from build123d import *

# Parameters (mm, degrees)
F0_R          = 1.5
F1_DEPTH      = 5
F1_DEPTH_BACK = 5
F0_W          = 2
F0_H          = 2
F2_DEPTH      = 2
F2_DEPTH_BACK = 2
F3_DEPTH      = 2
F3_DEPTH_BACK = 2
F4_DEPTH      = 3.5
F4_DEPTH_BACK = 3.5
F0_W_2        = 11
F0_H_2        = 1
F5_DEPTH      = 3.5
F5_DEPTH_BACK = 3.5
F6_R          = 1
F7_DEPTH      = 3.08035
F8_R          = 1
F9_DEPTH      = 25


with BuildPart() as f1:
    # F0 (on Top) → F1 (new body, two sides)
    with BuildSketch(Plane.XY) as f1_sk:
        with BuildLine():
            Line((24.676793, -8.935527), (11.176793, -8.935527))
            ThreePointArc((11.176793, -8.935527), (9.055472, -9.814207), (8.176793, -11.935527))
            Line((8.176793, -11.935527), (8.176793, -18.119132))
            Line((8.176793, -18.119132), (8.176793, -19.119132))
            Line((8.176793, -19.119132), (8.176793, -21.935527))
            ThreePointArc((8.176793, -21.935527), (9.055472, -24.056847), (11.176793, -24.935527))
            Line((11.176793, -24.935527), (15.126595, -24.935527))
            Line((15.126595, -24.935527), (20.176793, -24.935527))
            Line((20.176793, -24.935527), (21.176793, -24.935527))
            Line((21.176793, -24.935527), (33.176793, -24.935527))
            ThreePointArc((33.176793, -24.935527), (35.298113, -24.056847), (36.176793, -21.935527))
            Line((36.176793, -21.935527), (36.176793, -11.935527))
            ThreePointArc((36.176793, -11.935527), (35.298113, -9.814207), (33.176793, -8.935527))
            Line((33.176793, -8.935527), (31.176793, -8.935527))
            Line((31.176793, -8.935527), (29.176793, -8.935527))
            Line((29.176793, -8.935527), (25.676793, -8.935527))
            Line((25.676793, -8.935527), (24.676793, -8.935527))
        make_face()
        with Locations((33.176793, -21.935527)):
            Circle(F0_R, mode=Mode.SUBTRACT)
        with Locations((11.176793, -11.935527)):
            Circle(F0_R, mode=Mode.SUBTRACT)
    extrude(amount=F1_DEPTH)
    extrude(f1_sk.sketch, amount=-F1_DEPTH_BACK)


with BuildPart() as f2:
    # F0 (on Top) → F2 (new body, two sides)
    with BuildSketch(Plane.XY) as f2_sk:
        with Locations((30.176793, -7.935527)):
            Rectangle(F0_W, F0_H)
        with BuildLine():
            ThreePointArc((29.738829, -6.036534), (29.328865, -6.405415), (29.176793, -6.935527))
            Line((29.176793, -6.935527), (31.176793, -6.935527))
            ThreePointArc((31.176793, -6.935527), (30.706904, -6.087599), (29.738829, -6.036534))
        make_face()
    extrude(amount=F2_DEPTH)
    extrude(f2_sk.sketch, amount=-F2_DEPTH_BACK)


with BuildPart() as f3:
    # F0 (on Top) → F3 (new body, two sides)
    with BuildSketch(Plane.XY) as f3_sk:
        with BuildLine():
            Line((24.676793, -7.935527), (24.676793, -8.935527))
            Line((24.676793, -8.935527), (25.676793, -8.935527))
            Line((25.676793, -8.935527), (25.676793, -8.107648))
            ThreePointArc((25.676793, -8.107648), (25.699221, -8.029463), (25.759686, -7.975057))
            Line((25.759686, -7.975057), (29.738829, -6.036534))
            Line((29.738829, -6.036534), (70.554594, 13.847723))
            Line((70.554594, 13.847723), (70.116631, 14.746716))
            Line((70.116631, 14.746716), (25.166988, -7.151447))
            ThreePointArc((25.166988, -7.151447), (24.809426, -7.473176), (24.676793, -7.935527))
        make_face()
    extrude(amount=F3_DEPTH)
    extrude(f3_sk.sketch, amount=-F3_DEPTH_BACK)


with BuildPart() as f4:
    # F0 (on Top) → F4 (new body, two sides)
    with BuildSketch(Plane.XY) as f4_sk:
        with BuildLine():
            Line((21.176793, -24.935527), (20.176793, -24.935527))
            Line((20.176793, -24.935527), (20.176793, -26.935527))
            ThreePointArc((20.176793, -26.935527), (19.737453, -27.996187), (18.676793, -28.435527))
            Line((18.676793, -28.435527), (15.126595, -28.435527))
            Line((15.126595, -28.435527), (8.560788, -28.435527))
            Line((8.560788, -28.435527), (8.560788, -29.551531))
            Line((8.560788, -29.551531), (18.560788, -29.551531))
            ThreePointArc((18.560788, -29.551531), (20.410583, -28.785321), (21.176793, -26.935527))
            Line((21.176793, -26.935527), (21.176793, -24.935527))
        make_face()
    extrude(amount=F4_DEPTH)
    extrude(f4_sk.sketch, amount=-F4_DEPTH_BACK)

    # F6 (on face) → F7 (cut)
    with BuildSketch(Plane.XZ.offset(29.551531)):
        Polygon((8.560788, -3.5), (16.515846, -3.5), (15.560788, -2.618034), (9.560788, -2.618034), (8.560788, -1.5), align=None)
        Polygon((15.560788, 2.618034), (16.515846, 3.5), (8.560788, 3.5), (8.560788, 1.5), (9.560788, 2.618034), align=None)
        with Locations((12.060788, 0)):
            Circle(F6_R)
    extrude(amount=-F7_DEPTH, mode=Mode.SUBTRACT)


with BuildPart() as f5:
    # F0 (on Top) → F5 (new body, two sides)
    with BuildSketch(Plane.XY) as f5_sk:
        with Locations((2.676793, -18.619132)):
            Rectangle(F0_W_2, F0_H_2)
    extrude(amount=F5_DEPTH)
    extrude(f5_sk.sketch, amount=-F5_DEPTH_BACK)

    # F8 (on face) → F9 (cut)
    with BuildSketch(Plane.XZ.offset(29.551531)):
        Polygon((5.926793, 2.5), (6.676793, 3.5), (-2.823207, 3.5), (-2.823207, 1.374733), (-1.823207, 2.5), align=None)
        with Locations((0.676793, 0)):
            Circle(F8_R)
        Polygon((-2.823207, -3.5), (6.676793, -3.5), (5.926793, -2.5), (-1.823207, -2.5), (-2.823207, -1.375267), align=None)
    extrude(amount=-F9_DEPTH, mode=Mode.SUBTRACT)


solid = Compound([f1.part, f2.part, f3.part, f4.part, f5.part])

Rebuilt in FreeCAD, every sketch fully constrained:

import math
import FreeCAD as App
import Part
import Sketcher
from FreeCAD import Vector

doc = App.newDocument("Part")
body = doc.addObject("PartDesign::Body", "Body")

# Sketch on XY plane
sketch1 = body.newObject("Sketcher::SketchObject", "Sketch")
sketch1.AttachmentSupport = (doc.getObject("XY_Plane"), [""])
sketch1.MapMode = "FlatFace"
sketch1.addGeometry(Part.ArcOfCircle(Part.Circle(Vector(11.2, -11.9, 0), Vector(0, 0, 1), 3), math.radians(90), math.radians(180)), False)
sketch1.addGeometry(Part.LineSegment(Vector(8.2, -11.9, 0), Vector(8.2, -21.9, 0)), False)
sketch1.addGeometry(Part.ArcOfCircle(Part.Circle(Vector(11.2, -21.9, 0), Vector(0, 0, 1), 3), math.radians(180), math.radians(270)), False)
sketch1.addGeometry(Part.LineSegment(Vector(11.2, -24.9, 0), Vector(33.2, -24.9, 0)), False)
sketch1.addGeometry(Part.ArcOfCircle(Part.Circle(Vector(33.2, -21.9, 0), Vector(0, 0, 1), 3), math.radians(-90), math.radians(0)), False)
sketch1.addGeometry(Part.LineSegment(Vector(36.2, -21.9, 0), Vector(36.2, -11.9, 0)), False)
sketch1.addGeometry(Part.ArcOfCircle(Part.Circle(Vector(33.2, -11.9, 0), Vector(0, 0, 1), 3), math.radians(0), math.radians(90)), False)
sketch1.addGeometry(Part.LineSegment(Vector(33.2, -8.9, 0), Vector(11.2, -8.9, 0)), False)
sketch1.addGeometry(Part.Circle(Vector(33.2, -21.9, 0), Vector(0, 0, 1), 1.5), False)
sketch1.addGeometry(Part.Circle(Vector(11.2, -11.9, 0), Vector(0, 0, 1), 1.5), False)
sketch1.addConstraint(Sketcher.Constraint("Tangent", 0, 2, 1, 1))
sketch1.addConstraint(Sketcher.Constraint("Tangent", 1, 2, 2, 1))
sketch1.addConstraint(Sketcher.Constraint("Tangent", 2, 2, 3, 1))
sketch1.addConstraint(Sketcher.Constraint("Tangent", 3, 2, 4, 1))
sketch1.addConstraint(Sketcher.Constraint("Tangent", 4, 2, 5, 1))
sketch1.addConstraint(Sketcher.Constraint("Tangent", 5, 2, 6, 1))
sketch1.addConstraint(Sketcher.Constraint("Tangent", 6, 2, 7, 1))
sketch1.addConstraint(Sketcher.Constraint("Tangent", 7, 2, 0, 1))
sketch1.addConstraint(Sketcher.Constraint("Vertical", 1))
sketch1.addConstraint(Sketcher.Constraint("Horizontal", 3))
sketch1.addConstraint(Sketcher.Constraint("Vertical", 5))
sketch1.addConstraint(Sketcher.Constraint("Horizontal", 7))
sketch1.addConstraint(Sketcher.Constraint("Coincident", 8, 3, 4, 3))
sketch1.addConstraint(Sketcher.Constraint("Coincident", 9, 3, 0, 3))
sketch1.addConstraint(Sketcher.Constraint("Equal", 0, 2))
sketch1.addConstraint(Sketcher.Constraint("Equal", 2, 4))
sketch1.addConstraint(Sketcher.Constraint("Equal", 4, 6))
sketch1.addConstraint(Sketcher.Constraint("Equal", 8, 9))
sketch1.addConstraint(Sketcher.Constraint("Diameter", 8, 3.0))
sketch1.addConstraint(Sketcher.Constraint("Radius", 0, 2.999999))
sketch1.addConstraint(Sketcher.Constraint("DistanceX", 3, 1, 3, 2, 22.0))
sketch1.addConstraint(Sketcher.Constraint("DistanceY", 1, 2, 1, 1, 10.0))
sketch1.addConstraint(Sketcher.Constraint("DistanceX", -1, 1, 4, 3, 33.176792))
sketch1.addConstraint(Sketcher.Constraint("DistanceY", 6, 3, -1, 1, 11.935528))
pad1 = body.newObject("PartDesign::Pad", "Pad")
pad1.Profile = sketch1
pad1.Type = "TwoLengths"
pad1.Length = 5
pad1.Length2 = 5
body2 = doc.addObject("PartDesign::Body", "Body001")

# Sketch on XY plane
sketch2 = body2.newObject("Sketcher::SketchObject", "Sketch001")
sketch2.AttachmentSupport = (doc.getObject("XY_Plane001"), [""])
sketch2.MapMode = "FlatFace"
sketch2.addGeometry(Part.LineSegment(Vector(29.2, -6.9, 0), Vector(29.2, -8.9, 0)), False)
sketch2.addGeometry(Part.LineSegment(Vector(29.2, -8.9, 0), Vector(31.2, -8.9, 0)), False)
sketch2.addGeometry(Part.LineSegment(Vector(31.2, -8.9, 0), Vector(31.2, -6.9, 0)), False)
sketch2.addGeometry(Part.ArcOfCircle(Part.Circle(Vector(30.2, -6.9, 0), Vector(0, 0, 1), 1), math.radians(0), math.radians(116)), False)
sketch2.addGeometry(Part.ArcOfCircle(Part.Circle(Vector(30.2, -6.9, 0), Vector(0, 0, 1), 1), math.radians(116), math.radians(180)), False)
sketch2.addConstraint(Sketcher.Constraint("Coincident", 0, 2, 1, 1))
sketch2.addConstraint(Sketcher.Constraint("Coincident", 1, 2, 2, 1))
sketch2.addConstraint(Sketcher.Constraint("Tangent", 2, 2, 3, 1))
sketch2.addConstraint(Sketcher.Constraint("Tangent", 3, 2, 4, 1))
sketch2.addConstraint(Sketcher.Constraint("Tangent", 4, 2, 0, 1))
sketch2.addConstraint(Sketcher.Constraint("Vertical", 0))
sketch2.addConstraint(Sketcher.Constraint("Horizontal", 1))
sketch2.addConstraint(Sketcher.Constraint("Vertical", 2))
sketch2.addConstraint(Sketcher.Constraint("Equal", 3, 4))
sketch2.addConstraint(Sketcher.Constraint("Equal", 1, 0))
sketch2.addConstraint(Sketcher.Constraint("Radius", 3, 1.000001))
sketch2.addConstraint(Sketcher.Constraint("DistanceX", -1, 1, 3, 2, 29.738829))
sketch2.addConstraint(Sketcher.Constraint("DistanceX", -1, 1, 3, 3, 30.176792))
sketch2.addConstraint(Sketcher.Constraint("DistanceY", 3, 3, -1, 1, 6.935528))
pad2 = body2.newObject("PartDesign::Pad", "Pad001")
pad2.Profile = sketch2
pad2.Type = "TwoLengths"
pad2.Length = 2
pad2.Length2 = 2
body3 = doc.addObject("PartDesign::Body", "Body002")

# Sketch on XY plane
sketch3 = body3.newObject("Sketcher::SketchObject", "Sketch002")
sketch3.AttachmentSupport = (doc.getObject("XY_Plane002"), [""])
sketch3.MapMode = "FlatFace"
sketch3.addGeometry(Part.LineSegment(Vector(24.68, -7.94, 0), Vector(24.68, -8.94, 0)), False)
sketch3.addGeometry(Part.LineSegment(Vector(24.68, -8.94, 0), Vector(25.68, -8.94, 0)), False)
sketch3.addGeometry(Part.LineSegment(Vector(25.68, -8.94, 0), Vector(25.68, -8.11, 0)), False)
sketch3.addGeometry(Part.ArcOfCircle(Part.Circle(Vector(25.82, -8.11, 0), Vector(0, 0, 1), 0.15), math.radians(116), math.radians(180)), False)
sketch3.addGeometry(Part.LineSegment(Vector(25.76, -7.98, 0), Vector(29.74, -6.04, 0)), False)
sketch3.addGeometry(Part.LineSegment(Vector(29.74, -6.04, 0), Vector(70.55, 13.85, 0)), False)
sketch3.addGeometry(Part.LineSegment(Vector(70.55, 13.85, 0), Vector(70.12, 14.75, 0)), False)
sketch3.addGeometry(Part.LineSegment(Vector(70.12, 14.75, 0), Vector(25.17, -7.15, 0)), False)
sketch3.addGeometry(Part.ArcOfCircle(Part.Circle(Vector(25.55, -7.94, 0), Vector(0, 0, 1), 0.87), math.radians(116), math.radians(180)), False)
sketch3.addConstraint(Sketcher.Constraint("Coincident", 0, 2, 1, 1))
sketch3.addConstraint(Sketcher.Constraint("Coincident", 1, 2, 2, 1))
sketch3.addConstraint(Sketcher.Constraint("Coincident", 2, 2, 3, 2))
sketch3.addConstraint(Sketcher.Constraint("Tangent", 3, 1, 4, 1))
sketch3.addConstraint(Sketcher.Constraint("Coincident", 4, 2, 5, 1))
sketch3.addConstraint(Sketcher.Constraint("Coincident", 5, 2, 6, 1))
sketch3.addConstraint(Sketcher.Constraint("Coincident", 6, 2, 7, 1))
sketch3.addConstraint(Sketcher.Constraint("Coincident", 7, 2, 8, 1))
sketch3.addConstraint(Sketcher.Constraint("Coincident", 8, 2, 0, 1))
sketch3.addConstraint(Sketcher.Constraint("Vertical", 0))
sketch3.addConstraint(Sketcher.Constraint("Horizontal", 1))
sketch3.addConstraint(Sketcher.Constraint("Vertical", 2))
sketch3.addConstraint(Sketcher.Constraint("Parallel", 4, 5))
sketch3.addConstraint(Sketcher.Constraint("Perpendicular", 5, 6))
sketch3.addConstraint(Sketcher.Constraint("Perpendicular", 6, 7))
sketch3.addConstraint(Sketcher.Constraint("Horizontal", 3, 3, 2, 2))
sketch3.addConstraint(Sketcher.Constraint("Equal", 1, 0))
sketch3.addConstraint(Sketcher.Constraint("DistanceX", 1, 1, 1, 2, 1.0))
sketch3.addConstraint(Sketcher.Constraint("Distance", 6, 1.0))
sketch3.addConstraint(Sketcher.Constraint("Distance", 7, 49.999999))
sketch3.addConstraint(Sketcher.Constraint("Radius", 8, 0.872172))
sketch3.addConstraint(Sketcher.Constraint("Radius", 3, 0.147486))
sketch3.addConstraint(Sketcher.Constraint("DistanceY", 2, 1, 2, 2, 0.827879))
sketch3.addConstraint(Sketcher.Constraint("DistanceX", 2, 2, 5, 2, 44.877801))
sketch3.addConstraint(Sketcher.Constraint("DistanceX", 7, 2, 3, 1, 0.592698))
sketch3.addConstraint(Sketcher.Constraint("DistanceX", -1, 1, 3, 3, 25.824279))
sketch3.addConstraint(Sketcher.Constraint("DistanceX", -1, 1, 4, 2, 29.738829))
sketch3.addConstraint(Sketcher.Constraint("DistanceY", 3, 3, -1, 1, 8.107646))
pad3 = body3.newObject("PartDesign::Pad", "Pad002")
pad3.Profile = sketch3
pad3.Type = "TwoLengths"
pad3.Length = 2
pad3.Length2 = 2
body4 = doc.addObject("PartDesign::Body", "Body003")

# Sketch on XY plane
sketch4 = body4.newObject("Sketcher::SketchObject", "Sketch003")
sketch4.AttachmentSupport = (doc.getObject("XY_Plane003"), [""])
sketch4.MapMode = "FlatFace"
sketch4.addGeometry(Part.LineSegment(Vector(21.2, -24.9, 0), Vector(20.2, -24.9, 0)), False)
sketch4.addGeometry(Part.LineSegment(Vector(20.2, -24.9, 0), Vector(20.2, -26.9, 0)), False)
sketch4.addGeometry(Part.ArcOfCircle(Part.Circle(Vector(18.7, -26.9, 0), Vector(0, 0, 1), 1.5), math.radians(-90), math.radians(0)), False)
sketch4.addGeometry(Part.LineSegment(Vector(18.7, -28.4, 0), Vector(8.6, -28.4, 0)), False)
sketch4.addGeometry(Part.LineSegment(Vector(8.6, -28.4, 0), Vector(8.6, -29.6, 0)), False)
sketch4.addGeometry(Part.LineSegment(Vector(8.6, -29.6, 0), Vector(18.6, -29.6, 0)), False)
sketch4.addGeometry(Part.ArcOfCircle(Part.Circle(Vector(18.6, -26.9, 0), Vector(0, 0, 1), 2.6), math.radians(-90), math.radians(0)), False)
sketch4.addGeometry(Part.LineSegment(Vector(21.2, -26.9, 0), Vector(21.2, -24.9, 0)), False)
sketch4.addConstraint(Sketcher.Constraint("Coincident", 0, 2, 1, 1))
sketch4.addConstraint(Sketcher.Constraint("Tangent", 1, 2, 2, 2))
sketch4.addConstraint(Sketcher.Constraint("Tangent", 2, 1, 3, 1))
sketch4.addConstraint(Sketcher.Constraint("Coincident", 3, 2, 4, 1))
sketch4.addConstraint(Sketcher.Constraint("Coincident", 4, 2, 5, 1))
sketch4.addConstraint(Sketcher.Constraint("Tangent", 5, 2, 6, 1))
sketch4.addConstraint(Sketcher.Constraint("Tangent", 6, 2, 7, 1))
sketch4.addConstraint(Sketcher.Constraint("Coincident", 7, 2, 0, 1))
sketch4.addConstraint(Sketcher.Constraint("Horizontal", 0))
sketch4.addConstraint(Sketcher.Constraint("Vertical", 1))
sketch4.addConstraint(Sketcher.Constraint("Horizontal", 3))
sketch4.addConstraint(Sketcher.Constraint("Vertical", 4))
sketch4.addConstraint(Sketcher.Constraint("Horizontal", 5))
sketch4.addConstraint(Sketcher.Constraint("Vertical", 7))
sketch4.addConstraint(Sketcher.Constraint("Horizontal", 2, 3, 6, 3))
sketch4.addConstraint(Sketcher.Constraint("Radius", 2, 1.500001))
sketch4.addConstraint(Sketcher.Constraint("DistanceX", 0, 2, 0, 1, 1.0))
sketch4.addConstraint(Sketcher.Constraint("DistanceX", 5, 1, 5, 2, 10.0))
sketch4.addConstraint(Sketcher.Constraint("DistanceY", 1, 2, 1, 1, 2.0))
sketch4.addConstraint(Sketcher.Constraint("Radius", 6, 2.616005))
sketch4.addConstraint(Sketcher.Constraint("DistanceX", -1, 1, 6, 3, 18.560788))
sketch4.addConstraint(Sketcher.Constraint("DistanceY", 4, 2, -1, 1, 29.551531))
pad4 = body4.newObject("PartDesign::Pad", "Pad003")
pad4.Profile = sketch4
pad4.Type = "TwoLengths"
pad4.Length = 3.5
pad4.Length2 = 3.5

# Sketch on XZ plane
sketch5 = body4.newObject("Sketcher::SketchObject", "Sketch004")
sketch5.AttachmentSupport = (doc.getObject("XZ_Plane003"), [""])
sketch5.MapMode = "FlatFace"
sketch5.AttachmentOffset = App.Placement(Vector(0, 0, 29.551531), App.Rotation())
sketch5.addGeometry(Part.LineSegment(Vector(8.6, -3.5, 0), Vector(16.5, -3.5, 0)), False)
sketch5.addGeometry(Part.LineSegment(Vector(16.5, -3.5, 0), Vector(15.6, -2.6, 0)), False)
sketch5.addGeometry(Part.LineSegment(Vector(15.6, -2.6, 0), Vector(9.6, -2.6, 0)), False)
sketch5.addGeometry(Part.LineSegment(Vector(9.6, -2.6, 0), Vector(8.6, -1.5, 0)), False)
sketch5.addGeometry(Part.LineSegment(Vector(8.6, -1.5, 0), Vector(8.6, -3.5, 0)), False)
sketch5.addGeometry(Part.LineSegment(Vector(15.6, 2.6, 0), Vector(16.5, 3.5, 0)), False)
sketch5.addGeometry(Part.LineSegment(Vector(16.5, 3.5, 0), Vector(8.6, 3.5, 0)), False)
sketch5.addGeometry(Part.LineSegment(Vector(8.6, 3.5, 0), Vector(8.6, 1.5, 0)), False)
sketch5.addGeometry(Part.LineSegment(Vector(8.6, 1.5, 0), Vector(9.6, 2.6, 0)), False)
sketch5.addGeometry(Part.LineSegment(Vector(9.6, 2.6, 0), Vector(15.6, 2.6, 0)), False)
sketch5.addGeometry(Part.Circle(Vector(12.1, 0, 0), Vector(0, 0, 1), 1), False)
sketch5.addConstraint(Sketcher.Constraint("Coincident", 0, 2, 1, 1))
sketch5.addConstraint(Sketcher.Constraint("Coincident", 1, 2, 2, 1))
sketch5.addConstraint(Sketcher.Constraint("Coincident", 2, 2, 3, 1))
sketch5.addConstraint(Sketcher.Constraint("Coincident", 3, 2, 4, 1))
sketch5.addConstraint(Sketcher.Constraint("Coincident", 4, 2, 0, 1))
sketch5.addConstraint(Sketcher.Constraint("Coincident", 5, 2, 6, 1))
sketch5.addConstraint(Sketcher.Constraint("Coincident", 6, 2, 7, 1))
sketch5.addConstraint(Sketcher.Constraint("Coincident", 7, 2, 8, 1))
sketch5.addConstraint(Sketcher.Constraint("Coincident", 8, 2, 9, 1))
sketch5.addConstraint(Sketcher.Constraint("Coincident", 9, 2, 5, 1))
sketch5.addConstraint(Sketcher.Constraint("Horizontal", 0))
sketch5.addConstraint(Sketcher.Constraint("Horizontal", 2))
sketch5.addConstraint(Sketcher.Constraint("Vertical", 4))
sketch5.addConstraint(Sketcher.Constraint("Horizontal", 6))
sketch5.addConstraint(Sketcher.Constraint("Vertical", 7))
sketch5.addConstraint(Sketcher.Constraint("Horizontal", 9))
sketch5.addConstraint(Sketcher.Constraint("Symmetric", 0, 2, 5, 2, -1))
sketch5.addConstraint(Sketcher.Constraint("Symmetric", 3, 2, 7, 2, -1))
sketch5.addConstraint(Sketcher.Constraint("Symmetric", 2, 2, 8, 2, -1))
sketch5.addConstraint(Sketcher.Constraint("PointOnObject", 10, 3, -1))
sketch5.addConstraint(Sketcher.Constraint("Vertical", 1, 2, 9, 2))
sketch5.addConstraint(Sketcher.Constraint("Diameter", 10, 2.0))
sketch5.addConstraint(Sketcher.Constraint("DistanceX", 2, 2, 2, 1, 6.0))
sketch5.addConstraint(Sketcher.Constraint("DistanceY", 4, 2, 4, 1, 2.0))
sketch5.addConstraint(Sketcher.Constraint("DistanceX", 3, 2, 2, 2, 1.0))
sketch5.addConstraint(Sketcher.Constraint("DistanceY", 0, 2, 5, 2, 7.0))
sketch5.addConstraint(Sketcher.Constraint("Distance", 1, 1.3))
sketch5.addConstraint(Sketcher.Constraint("Distance", 3, 1.5))
sketch5.addConstraint(Sketcher.Constraint("DistanceX", 10, 3, 1, 2, 3.5))
sketch5.addConstraint(Sketcher.Constraint("DistanceX", -1, 1, 10, 3, 12.060788))
pocket1 = body4.newObject("PartDesign::Pocket", "Pocket")
pocket1.Profile = sketch5
pocket1.Length = 3.08035
body5 = doc.addObject("PartDesign::Body", "Body004")

# Sketch on XY plane
sketch6 = body5.newObject("Sketcher::SketchObject", "Sketch005")
sketch6.AttachmentSupport = (doc.getObject("XY_Plane004"), [""])
sketch6.MapMode = "FlatFace"
sketch6.addGeometry(Part.LineSegment(Vector(-2.8, -18.1, 0), Vector(-2.8, -19.1, 0)), False)
sketch6.addGeometry(Part.LineSegment(Vector(-2.8, -19.1, 0), Vector(8.2, -19.1, 0)), False)
sketch6.addGeometry(Part.LineSegment(Vector(8.2, -19.1, 0), Vector(8.2, -18.1, 0)), False)
sketch6.addGeometry(Part.LineSegment(Vector(8.2, -18.1, 0), Vector(-2.8, -18.1, 0)), False)
sketch6.addConstraint(Sketcher.Constraint("Coincident", 0, 2, 1, 1))
sketch6.addConstraint(Sketcher.Constraint("Coincident", 1, 2, 2, 1))
sketch6.addConstraint(Sketcher.Constraint("Coincident", 2, 2, 3, 1))
sketch6.addConstraint(Sketcher.Constraint("Coincident", 3, 2, 0, 1))
sketch6.addConstraint(Sketcher.Constraint("Vertical", 0))
sketch6.addConstraint(Sketcher.Constraint("Horizontal", 1))
sketch6.addConstraint(Sketcher.Constraint("Vertical", 2))
sketch6.addConstraint(Sketcher.Constraint("Horizontal", 3))
sketch6.addConstraint(Sketcher.Constraint("DistanceX", 1, 1, 1, 2, 11.0))
sketch6.addConstraint(Sketcher.Constraint("DistanceY", 0, 2, 0, 1, 1.0))
sketch6.addConstraint(Sketcher.Constraint("DistanceX", 0, 2, -1, 1, 2.823207))
sketch6.addConstraint(Sketcher.Constraint("DistanceY", 0, 2, -1, 1, 19.119132))
pad5 = body5.newObject("PartDesign::Pad", "Pad004")
pad5.Profile = sketch6
pad5.Type = "TwoLengths"
pad5.Length = 3.5
pad5.Length2 = 3.5

# Sketch on XZ plane
sketch7 = body5.newObject("Sketcher::SketchObject", "Sketch006")
sketch7.AttachmentSupport = (doc.getObject("XZ_Plane004"), [""])
sketch7.MapMode = "FlatFace"
sketch7.AttachmentOffset = App.Placement(Vector(0, 0, 29.551531), App.Rotation())
sketch7.addGeometry(Part.LineSegment(Vector(5.9, 2.5, 0), Vector(6.7, 3.5, 0)), False)
sketch7.addGeometry(Part.LineSegment(Vector(6.7, 3.5, 0), Vector(-2.8, 3.5, 0)), False)
sketch7.addGeometry(Part.LineSegment(Vector(-2.8, 3.5, 0), Vector(-2.8, 1.4, 0)), False)
sketch7.addGeometry(Part.LineSegment(Vector(-2.8, 1.4, 0), Vector(-1.8, 2.5, 0)), False)
sketch7.addGeometry(Part.LineSegment(Vector(-1.8, 2.5, 0), Vector(5.9, 2.5, 0)), False)
sketch7.addGeometry(Part.Circle(Vector(0.7, 0, 0), Vector(0, 0, 1), 1), False)
sketch7.addGeometry(Part.LineSegment(Vector(-2.8, -3.5, 0), Vector(6.7, -3.5, 0)), False)
sketch7.addGeometry(Part.LineSegment(Vector(6.7, -3.5, 0), Vector(5.9, -2.5, 0)), False)
sketch7.addGeometry(Part.LineSegment(Vector(5.9, -2.5, 0), Vector(-1.8, -2.5, 0)), False)
sketch7.addGeometry(Part.LineSegment(Vector(-1.8, -2.5, 0), Vector(-2.8, -1.4, 0)), False)
sketch7.addGeometry(Part.LineSegment(Vector(-2.8, -1.4, 0), Vector(-2.8, -3.5, 0)), False)
sketch7.addConstraint(Sketcher.Constraint("Coincident", 0, 2, 1, 1))
sketch7.addConstraint(Sketcher.Constraint("Coincident", 1, 2, 2, 1))
sketch7.addConstraint(Sketcher.Constraint("Coincident", 2, 2, 3, 1))
sketch7.addConstraint(Sketcher.Constraint("Coincident", 3, 2, 4, 1))
sketch7.addConstraint(Sketcher.Constraint("Coincident", 4, 2, 0, 1))
sketch7.addConstraint(Sketcher.Constraint("Coincident", 6, 2, 7, 1))
sketch7.addConstraint(Sketcher.Constraint("Coincident", 7, 2, 8, 1))
sketch7.addConstraint(Sketcher.Constraint("Coincident", 8, 2, 9, 1))
sketch7.addConstraint(Sketcher.Constraint("Coincident", 9, 2, 10, 1))
sketch7.addConstraint(Sketcher.Constraint("Coincident", 10, 2, 6, 1))
sketch7.addConstraint(Sketcher.Constraint("Horizontal", 1))
sketch7.addConstraint(Sketcher.Constraint("Vertical", 2))
sketch7.addConstraint(Sketcher.Constraint("Horizontal", 4))
sketch7.addConstraint(Sketcher.Constraint("Horizontal", 6))
sketch7.addConstraint(Sketcher.Constraint("Horizontal", 8))
sketch7.addConstraint(Sketcher.Constraint("Vertical", 10))
sketch7.addConstraint(Sketcher.Constraint("Symmetric", 0, 2, 6, 2, -1))
sketch7.addConstraint(Sketcher.Constraint("Symmetric", 4, 2, 7, 2, -1))
sketch7.addConstraint(Sketcher.Constraint("PointOnObject", 5, 3, -1))
sketch7.addConstraint(Sketcher.Constraint("Vertical", 3, 2, 8, 2))
sketch7.addConstraint(Sketcher.Constraint("Vertical", 2, 2, 9, 2))
sketch7.addConstraint(Sketcher.Constraint("Diameter", 5, 2.0))
sketch7.addConstraint(Sketcher.Constraint("DistanceX", 1, 2, 1, 1, 9.5))
sketch7.addConstraint(Sketcher.Constraint("DistanceX", 5, 3, 0, 2, 6.0))
sketch7.addConstraint(Sketcher.Constraint("DistanceX", 1, 2, 3, 2, 1.0))
sketch7.addConstraint(Sketcher.Constraint("DistanceY", 3, 2, 1, 2, 1.0))
sketch7.addConstraint(Sketcher.Constraint("DistanceY", 6, 2, 4, 2, 6.0))
sketch7.addConstraint(Sketcher.Constraint("DistanceX", 4, 1, 4, 2, 7.75))
sketch7.addConstraint(Sketcher.Constraint("DistanceY", 9, 2, 2, 2, 2.75))
sketch7.addConstraint(Sketcher.Constraint("Distance", 9, 1.505))
sketch7.addConstraint(Sketcher.Constraint("DistanceX", -1, 1, 5, 3, 0.676793))
pocket2 = body5.newObject("PartDesign::Pocket", "Pocket001")
pocket2.Profile = sketch7
pocket2.Length = 25

doc.recompute()
